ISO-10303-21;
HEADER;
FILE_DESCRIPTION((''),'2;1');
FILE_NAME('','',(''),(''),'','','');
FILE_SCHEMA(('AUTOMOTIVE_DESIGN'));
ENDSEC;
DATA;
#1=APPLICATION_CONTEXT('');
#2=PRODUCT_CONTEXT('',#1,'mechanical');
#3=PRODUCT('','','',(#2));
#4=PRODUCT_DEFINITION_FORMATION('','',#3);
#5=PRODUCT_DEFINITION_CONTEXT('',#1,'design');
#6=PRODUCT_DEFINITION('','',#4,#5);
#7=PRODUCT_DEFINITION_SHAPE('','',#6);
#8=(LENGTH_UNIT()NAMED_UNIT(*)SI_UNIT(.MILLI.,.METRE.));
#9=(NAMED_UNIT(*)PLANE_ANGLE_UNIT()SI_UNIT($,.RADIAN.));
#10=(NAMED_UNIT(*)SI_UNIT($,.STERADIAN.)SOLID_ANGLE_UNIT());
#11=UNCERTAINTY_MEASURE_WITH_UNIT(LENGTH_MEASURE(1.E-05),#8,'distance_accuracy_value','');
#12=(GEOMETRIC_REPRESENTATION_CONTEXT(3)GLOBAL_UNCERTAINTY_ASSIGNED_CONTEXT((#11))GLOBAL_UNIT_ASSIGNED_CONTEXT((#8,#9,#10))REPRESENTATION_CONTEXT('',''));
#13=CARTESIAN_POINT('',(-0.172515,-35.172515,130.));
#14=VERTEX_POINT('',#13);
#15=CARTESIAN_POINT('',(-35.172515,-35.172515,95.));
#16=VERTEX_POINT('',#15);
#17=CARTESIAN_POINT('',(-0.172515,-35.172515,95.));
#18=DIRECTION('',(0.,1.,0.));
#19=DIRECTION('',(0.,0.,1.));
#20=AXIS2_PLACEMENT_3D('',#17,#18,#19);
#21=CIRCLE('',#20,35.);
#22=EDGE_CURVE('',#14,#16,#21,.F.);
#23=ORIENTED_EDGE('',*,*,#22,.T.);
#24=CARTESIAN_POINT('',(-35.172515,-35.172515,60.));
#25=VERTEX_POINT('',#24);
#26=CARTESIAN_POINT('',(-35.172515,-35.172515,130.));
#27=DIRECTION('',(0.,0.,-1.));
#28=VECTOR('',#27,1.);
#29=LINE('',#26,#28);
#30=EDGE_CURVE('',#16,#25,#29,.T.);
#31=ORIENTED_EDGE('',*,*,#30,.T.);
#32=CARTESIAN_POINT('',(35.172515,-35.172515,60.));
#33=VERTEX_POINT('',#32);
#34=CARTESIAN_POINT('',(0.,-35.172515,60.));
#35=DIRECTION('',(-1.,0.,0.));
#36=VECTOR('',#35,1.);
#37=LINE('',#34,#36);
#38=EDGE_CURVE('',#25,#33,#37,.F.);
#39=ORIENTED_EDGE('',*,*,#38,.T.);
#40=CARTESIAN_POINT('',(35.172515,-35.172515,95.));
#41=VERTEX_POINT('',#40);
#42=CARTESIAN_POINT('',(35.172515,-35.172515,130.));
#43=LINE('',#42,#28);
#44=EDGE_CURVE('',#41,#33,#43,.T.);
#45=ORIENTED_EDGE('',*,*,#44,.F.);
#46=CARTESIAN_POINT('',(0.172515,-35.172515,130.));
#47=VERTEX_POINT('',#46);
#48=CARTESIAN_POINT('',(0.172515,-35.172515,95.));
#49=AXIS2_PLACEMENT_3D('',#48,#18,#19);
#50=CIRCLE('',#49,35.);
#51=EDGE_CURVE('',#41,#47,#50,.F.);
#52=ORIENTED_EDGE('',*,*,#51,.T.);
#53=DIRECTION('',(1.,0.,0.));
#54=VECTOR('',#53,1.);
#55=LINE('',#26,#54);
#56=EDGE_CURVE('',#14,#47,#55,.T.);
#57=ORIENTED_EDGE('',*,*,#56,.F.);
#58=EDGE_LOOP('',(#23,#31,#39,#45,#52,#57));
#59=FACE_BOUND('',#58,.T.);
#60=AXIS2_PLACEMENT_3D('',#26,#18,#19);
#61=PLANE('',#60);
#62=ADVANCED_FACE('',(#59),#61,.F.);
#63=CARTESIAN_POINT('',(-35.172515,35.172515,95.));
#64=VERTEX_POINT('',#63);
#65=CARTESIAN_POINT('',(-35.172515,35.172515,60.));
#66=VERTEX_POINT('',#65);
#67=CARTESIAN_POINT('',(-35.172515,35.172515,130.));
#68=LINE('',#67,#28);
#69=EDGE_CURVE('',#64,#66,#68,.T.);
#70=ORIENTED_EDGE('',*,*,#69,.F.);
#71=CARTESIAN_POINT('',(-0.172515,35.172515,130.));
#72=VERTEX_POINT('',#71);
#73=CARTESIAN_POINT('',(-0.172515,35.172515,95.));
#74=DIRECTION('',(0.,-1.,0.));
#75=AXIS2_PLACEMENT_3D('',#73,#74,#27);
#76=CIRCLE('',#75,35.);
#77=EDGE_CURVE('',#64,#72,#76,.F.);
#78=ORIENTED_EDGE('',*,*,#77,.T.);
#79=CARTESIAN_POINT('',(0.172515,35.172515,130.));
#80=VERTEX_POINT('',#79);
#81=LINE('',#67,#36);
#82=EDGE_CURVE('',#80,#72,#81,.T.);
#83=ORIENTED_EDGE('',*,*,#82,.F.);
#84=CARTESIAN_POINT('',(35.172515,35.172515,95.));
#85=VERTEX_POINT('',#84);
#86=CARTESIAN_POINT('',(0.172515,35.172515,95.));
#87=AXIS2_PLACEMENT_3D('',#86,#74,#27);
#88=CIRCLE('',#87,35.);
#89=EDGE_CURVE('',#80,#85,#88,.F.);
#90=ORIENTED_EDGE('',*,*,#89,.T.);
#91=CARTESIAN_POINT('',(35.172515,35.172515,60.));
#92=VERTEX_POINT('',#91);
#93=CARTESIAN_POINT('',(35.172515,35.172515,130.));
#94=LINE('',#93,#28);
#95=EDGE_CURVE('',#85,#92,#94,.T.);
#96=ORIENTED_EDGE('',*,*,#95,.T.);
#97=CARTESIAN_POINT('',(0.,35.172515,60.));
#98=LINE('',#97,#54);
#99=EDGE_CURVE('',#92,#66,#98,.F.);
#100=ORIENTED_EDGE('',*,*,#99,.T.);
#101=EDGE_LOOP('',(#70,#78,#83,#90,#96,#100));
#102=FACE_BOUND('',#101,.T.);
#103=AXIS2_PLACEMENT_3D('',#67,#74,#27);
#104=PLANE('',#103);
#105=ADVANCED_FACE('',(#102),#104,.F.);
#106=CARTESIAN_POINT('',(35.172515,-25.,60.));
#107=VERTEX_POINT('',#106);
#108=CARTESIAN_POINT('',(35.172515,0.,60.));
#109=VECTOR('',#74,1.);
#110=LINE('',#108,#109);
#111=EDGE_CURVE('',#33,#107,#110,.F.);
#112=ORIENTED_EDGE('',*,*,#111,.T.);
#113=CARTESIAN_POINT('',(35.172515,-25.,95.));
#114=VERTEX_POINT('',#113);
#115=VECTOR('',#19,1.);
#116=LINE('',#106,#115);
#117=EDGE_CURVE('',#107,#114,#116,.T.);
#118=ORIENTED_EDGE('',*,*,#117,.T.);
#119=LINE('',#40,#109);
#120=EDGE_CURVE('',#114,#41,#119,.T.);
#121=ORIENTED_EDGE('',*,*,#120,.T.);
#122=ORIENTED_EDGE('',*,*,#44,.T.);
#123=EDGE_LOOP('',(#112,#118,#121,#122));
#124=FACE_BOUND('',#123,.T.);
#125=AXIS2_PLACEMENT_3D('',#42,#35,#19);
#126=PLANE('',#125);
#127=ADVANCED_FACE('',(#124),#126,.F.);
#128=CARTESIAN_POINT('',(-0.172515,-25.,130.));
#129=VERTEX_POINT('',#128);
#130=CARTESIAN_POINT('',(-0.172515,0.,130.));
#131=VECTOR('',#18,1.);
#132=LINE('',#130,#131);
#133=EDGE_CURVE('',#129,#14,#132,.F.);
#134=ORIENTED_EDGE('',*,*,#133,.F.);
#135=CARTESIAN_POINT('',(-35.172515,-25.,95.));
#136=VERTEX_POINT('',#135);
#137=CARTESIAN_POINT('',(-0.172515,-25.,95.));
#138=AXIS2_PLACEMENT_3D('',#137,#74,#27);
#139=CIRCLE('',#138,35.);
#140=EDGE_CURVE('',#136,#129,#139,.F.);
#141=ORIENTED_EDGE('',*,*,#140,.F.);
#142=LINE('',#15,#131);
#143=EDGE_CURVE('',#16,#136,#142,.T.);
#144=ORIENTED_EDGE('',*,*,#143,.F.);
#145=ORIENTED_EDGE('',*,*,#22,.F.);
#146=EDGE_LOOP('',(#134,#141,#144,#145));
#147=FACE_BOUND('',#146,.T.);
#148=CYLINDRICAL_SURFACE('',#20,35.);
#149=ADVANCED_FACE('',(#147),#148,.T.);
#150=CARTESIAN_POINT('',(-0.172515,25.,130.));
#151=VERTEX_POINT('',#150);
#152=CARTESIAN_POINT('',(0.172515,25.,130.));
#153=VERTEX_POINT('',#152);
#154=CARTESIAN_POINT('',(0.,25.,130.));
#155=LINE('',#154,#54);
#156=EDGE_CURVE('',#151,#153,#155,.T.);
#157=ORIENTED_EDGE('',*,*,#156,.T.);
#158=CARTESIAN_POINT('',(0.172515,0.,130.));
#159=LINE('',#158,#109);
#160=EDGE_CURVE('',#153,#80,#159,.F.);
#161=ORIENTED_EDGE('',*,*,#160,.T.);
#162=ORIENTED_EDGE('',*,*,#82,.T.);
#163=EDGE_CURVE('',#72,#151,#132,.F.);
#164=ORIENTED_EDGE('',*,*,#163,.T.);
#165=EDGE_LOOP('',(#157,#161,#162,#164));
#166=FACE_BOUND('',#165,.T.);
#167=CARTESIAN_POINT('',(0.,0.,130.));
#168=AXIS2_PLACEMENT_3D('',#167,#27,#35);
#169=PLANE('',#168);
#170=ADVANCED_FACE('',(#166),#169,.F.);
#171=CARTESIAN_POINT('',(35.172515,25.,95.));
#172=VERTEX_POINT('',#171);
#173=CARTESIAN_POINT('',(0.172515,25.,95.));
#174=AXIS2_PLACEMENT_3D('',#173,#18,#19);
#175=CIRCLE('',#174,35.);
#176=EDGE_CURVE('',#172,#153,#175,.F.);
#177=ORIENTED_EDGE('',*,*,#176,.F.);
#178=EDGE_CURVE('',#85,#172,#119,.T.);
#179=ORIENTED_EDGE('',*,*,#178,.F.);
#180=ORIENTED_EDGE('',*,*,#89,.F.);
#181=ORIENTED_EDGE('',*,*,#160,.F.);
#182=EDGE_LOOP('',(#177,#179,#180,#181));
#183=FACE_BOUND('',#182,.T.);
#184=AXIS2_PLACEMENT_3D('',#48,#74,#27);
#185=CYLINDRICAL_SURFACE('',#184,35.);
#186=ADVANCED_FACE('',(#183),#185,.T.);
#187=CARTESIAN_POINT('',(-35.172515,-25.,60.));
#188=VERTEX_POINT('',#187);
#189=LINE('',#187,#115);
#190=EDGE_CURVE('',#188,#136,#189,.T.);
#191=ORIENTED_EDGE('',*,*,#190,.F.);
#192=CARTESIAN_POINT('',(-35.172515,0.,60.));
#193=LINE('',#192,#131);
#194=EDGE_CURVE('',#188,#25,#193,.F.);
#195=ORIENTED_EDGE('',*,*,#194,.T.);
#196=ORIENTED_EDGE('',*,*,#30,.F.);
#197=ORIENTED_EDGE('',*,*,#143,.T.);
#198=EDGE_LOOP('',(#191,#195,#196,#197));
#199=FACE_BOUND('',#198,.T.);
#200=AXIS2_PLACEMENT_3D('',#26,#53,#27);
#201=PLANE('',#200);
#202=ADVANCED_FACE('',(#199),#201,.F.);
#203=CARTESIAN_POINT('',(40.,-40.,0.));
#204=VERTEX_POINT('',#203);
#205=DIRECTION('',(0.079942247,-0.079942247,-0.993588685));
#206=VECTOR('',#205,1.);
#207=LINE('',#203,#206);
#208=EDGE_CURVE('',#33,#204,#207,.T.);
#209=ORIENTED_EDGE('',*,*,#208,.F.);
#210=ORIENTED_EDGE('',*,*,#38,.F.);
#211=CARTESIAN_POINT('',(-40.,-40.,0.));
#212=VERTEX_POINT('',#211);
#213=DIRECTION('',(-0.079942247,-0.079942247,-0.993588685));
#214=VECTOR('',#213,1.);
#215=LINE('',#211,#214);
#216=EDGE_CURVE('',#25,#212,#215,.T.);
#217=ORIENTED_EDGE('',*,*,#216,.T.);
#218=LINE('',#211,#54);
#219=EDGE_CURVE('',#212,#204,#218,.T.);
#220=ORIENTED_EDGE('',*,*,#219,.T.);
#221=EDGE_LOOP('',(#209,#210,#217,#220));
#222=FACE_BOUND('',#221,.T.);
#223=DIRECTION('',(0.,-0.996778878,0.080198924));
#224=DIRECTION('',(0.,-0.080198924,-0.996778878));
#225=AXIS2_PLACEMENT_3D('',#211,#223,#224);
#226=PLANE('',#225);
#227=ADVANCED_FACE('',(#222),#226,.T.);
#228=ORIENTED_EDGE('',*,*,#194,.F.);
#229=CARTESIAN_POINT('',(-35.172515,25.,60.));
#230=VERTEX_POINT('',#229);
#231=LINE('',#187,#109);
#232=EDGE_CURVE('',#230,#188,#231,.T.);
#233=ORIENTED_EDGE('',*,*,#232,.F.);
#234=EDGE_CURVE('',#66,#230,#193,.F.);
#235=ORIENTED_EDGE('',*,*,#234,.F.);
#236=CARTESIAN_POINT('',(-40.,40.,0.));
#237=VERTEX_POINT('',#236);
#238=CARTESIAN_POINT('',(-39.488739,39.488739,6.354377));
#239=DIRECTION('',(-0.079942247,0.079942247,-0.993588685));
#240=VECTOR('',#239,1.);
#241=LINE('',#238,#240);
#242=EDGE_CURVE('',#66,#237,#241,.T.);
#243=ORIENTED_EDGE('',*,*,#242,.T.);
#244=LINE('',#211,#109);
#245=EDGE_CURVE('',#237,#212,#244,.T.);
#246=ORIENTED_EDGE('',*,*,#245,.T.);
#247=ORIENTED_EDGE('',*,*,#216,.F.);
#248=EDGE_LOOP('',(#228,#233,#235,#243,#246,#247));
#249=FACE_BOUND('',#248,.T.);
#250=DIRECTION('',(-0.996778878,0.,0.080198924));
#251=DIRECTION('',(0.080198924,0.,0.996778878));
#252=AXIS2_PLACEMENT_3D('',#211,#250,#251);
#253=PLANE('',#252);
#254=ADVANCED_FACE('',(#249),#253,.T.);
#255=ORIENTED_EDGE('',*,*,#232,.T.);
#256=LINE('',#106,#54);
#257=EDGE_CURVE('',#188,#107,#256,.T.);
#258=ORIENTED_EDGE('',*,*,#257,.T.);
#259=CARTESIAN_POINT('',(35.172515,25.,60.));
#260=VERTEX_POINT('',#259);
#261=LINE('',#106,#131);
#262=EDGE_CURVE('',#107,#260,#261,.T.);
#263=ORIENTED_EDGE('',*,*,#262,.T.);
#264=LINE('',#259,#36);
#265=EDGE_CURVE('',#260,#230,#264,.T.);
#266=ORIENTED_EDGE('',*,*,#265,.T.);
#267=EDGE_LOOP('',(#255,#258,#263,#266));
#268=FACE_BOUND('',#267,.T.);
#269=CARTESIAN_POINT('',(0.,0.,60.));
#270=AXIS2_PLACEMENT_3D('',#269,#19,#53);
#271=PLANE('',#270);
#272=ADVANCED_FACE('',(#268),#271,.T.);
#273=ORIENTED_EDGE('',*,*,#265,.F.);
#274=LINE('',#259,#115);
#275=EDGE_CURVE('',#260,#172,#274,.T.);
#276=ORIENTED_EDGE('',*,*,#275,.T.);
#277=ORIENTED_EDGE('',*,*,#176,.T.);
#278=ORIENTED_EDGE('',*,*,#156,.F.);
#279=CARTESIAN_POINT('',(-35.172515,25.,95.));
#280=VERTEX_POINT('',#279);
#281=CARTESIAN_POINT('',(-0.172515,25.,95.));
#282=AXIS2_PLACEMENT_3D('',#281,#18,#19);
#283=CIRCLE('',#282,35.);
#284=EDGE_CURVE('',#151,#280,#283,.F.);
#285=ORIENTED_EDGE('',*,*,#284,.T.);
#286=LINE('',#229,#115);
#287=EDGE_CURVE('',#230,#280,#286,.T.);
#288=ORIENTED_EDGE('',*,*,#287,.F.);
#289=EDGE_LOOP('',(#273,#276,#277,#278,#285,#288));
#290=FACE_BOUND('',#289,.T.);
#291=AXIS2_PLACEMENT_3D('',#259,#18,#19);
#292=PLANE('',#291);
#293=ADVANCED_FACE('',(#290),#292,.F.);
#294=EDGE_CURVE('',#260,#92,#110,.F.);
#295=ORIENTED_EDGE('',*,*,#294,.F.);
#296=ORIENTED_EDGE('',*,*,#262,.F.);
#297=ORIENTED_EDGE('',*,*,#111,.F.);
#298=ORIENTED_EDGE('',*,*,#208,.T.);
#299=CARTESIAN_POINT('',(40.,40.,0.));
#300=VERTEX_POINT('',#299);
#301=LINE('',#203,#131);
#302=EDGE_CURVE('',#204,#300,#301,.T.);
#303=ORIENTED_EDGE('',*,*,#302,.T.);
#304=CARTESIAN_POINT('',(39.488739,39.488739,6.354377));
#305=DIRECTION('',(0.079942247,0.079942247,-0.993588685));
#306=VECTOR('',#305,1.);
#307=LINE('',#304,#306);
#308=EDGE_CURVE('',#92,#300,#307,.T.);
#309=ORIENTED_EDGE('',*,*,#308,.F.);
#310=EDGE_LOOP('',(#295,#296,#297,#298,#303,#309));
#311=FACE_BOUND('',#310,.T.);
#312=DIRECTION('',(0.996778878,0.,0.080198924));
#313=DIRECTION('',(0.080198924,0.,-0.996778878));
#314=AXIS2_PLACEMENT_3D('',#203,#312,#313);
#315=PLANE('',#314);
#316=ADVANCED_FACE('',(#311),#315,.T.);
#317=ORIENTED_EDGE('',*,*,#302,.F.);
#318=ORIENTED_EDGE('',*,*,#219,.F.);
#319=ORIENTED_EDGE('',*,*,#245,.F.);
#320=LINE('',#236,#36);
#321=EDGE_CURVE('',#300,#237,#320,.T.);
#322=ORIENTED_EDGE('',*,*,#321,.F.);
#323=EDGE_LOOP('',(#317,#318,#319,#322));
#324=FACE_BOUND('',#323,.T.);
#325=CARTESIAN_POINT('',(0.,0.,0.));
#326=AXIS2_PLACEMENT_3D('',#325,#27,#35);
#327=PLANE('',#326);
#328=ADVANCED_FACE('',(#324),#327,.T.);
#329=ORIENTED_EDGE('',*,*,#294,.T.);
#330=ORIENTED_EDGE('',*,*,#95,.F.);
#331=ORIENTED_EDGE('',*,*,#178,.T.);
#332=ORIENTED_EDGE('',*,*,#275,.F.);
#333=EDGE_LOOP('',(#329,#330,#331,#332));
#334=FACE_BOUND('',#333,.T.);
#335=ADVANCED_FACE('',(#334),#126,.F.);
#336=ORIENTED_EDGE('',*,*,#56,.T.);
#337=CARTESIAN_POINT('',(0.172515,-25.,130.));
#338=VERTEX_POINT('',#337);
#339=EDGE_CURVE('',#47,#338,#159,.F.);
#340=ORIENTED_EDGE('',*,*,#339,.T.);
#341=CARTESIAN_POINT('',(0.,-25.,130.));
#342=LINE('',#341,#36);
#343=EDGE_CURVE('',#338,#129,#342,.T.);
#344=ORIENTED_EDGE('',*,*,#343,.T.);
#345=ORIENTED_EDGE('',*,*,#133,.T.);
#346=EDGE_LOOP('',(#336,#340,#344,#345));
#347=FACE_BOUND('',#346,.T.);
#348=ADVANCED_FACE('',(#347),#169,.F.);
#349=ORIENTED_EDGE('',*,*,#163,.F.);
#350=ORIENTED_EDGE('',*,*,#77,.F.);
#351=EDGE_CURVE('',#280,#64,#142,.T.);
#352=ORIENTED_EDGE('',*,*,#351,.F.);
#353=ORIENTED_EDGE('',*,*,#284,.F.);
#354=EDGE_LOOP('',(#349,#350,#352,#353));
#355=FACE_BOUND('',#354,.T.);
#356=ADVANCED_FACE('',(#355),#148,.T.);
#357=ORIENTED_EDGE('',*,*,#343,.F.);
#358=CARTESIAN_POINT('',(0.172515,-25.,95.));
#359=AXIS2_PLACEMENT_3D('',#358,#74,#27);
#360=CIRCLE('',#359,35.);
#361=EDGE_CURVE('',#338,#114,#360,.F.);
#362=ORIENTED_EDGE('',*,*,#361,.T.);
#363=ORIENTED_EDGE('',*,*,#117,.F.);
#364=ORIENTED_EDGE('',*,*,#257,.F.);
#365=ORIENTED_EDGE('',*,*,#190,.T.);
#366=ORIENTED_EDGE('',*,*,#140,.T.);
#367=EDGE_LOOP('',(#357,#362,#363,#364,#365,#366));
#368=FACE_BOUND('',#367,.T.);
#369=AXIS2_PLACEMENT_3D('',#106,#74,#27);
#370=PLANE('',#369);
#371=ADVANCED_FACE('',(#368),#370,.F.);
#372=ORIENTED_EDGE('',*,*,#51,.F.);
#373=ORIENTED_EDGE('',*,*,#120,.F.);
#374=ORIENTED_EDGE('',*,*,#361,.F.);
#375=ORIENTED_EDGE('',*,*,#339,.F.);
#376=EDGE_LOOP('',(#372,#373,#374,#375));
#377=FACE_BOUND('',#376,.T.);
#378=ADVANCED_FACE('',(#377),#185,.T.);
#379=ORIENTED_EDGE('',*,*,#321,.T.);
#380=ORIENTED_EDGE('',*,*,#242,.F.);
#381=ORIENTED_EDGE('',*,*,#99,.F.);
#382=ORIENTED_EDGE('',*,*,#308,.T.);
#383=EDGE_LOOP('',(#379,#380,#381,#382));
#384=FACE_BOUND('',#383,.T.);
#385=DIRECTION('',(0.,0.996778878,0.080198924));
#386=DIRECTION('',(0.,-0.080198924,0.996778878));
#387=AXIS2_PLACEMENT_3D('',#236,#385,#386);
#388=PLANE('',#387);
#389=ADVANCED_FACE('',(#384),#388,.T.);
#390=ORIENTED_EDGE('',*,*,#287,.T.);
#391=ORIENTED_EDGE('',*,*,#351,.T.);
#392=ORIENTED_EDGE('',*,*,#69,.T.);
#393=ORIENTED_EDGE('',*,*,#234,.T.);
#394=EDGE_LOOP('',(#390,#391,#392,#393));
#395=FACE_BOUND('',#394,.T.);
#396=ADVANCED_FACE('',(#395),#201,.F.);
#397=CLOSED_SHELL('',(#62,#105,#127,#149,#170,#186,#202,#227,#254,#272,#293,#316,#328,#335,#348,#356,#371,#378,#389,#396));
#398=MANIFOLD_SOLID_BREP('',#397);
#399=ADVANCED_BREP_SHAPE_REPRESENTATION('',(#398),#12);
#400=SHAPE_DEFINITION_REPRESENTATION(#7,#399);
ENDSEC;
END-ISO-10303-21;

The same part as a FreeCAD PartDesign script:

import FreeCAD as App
import Part
import Sketcher

V = App.Vector


def edges_at(feature, points):
    """Names of the edges that pass closest to the given points."""
    edges = feature.Shape.Edges
    near = lambda p: min(range(len(edges)), key=lambda i: edges[i].distToShape(Part.Vertex(*p))[0])
    return sorted({f"Edge{near(p) + 1}" for p in points})


def add_polygon(sketch, points):
    """Adds a closed chain of lines whose ends are joined by coincident constraints."""
    first, n = sketch.GeometryCount, len(points)
    for a, b in zip(points, points[1:] + points[:1]):
        sketch.addGeometry(Part.LineSegment(App.Vector(*a, 0), App.Vector(*b, 0)), False)
    for i in range(n):
        sketch.addConstraint(Sketcher.Constraint("Coincident", first + i, 2, first + (i + 1) % n, 1))

doc = App.newDocument("Part")
body = doc.addObject("PartDesign::Body", "Body")

# Sketch on XY plane
sketch1 = body.newObject("Sketcher::SketchObject", "Sketch")
sketch1.AttachmentSupport = (doc.getObject("XY_Plane"), [""])
sketch1.MapMode = "FlatFace"
add_polygon(sketch1, [(-40, 40), (-40, -40), (40, -40), (40, 40)])  # lines 0-3
sketch1.addConstraint([
    Sketcher.Constraint("Vertical", 0),
    Sketcher.Constraint("Horizontal", 1),
    Sketcher.Constraint("Vertical", 2),
    Sketcher.Constraint("Horizontal", 3),
    Sketcher.Constraint("Symmetric", 0, 2, 2, 2, -1, 1),
    Sketcher.Constraint("Equal", 3, 0),
    Sketcher.Constraint("DistanceX", 1, 1, 1, 2, 80.0),
])
pad1 = body.newObject("PartDesign::Pad", "Pad")
pad1.Profile = sketch1
pad1.Length = 60
pad1.TaperAngle = -4.6

# Sketch on XY plane
sketch2 = body.newObject("Sketcher::SketchObject", "Sketch001")
sketch2.AttachmentSupport = (doc.getObject("XY_Plane"), [""])
sketch2.MapMode = "FlatFace"
sketch2.AttachmentOffset = App.Placement(V(0, 0, 60), App.Rotation())
add_polygon(sketch2, [(-35, 35), (-35, -35), (35, -35), (35, 35)])  # lines 0-3
sketch2.addConstraint([
    Sketcher.Constraint("Vertical", 0),
    Sketcher.Constraint("Horizontal", 1),
    Sketcher.Constraint("Vertical", 2),
    Sketcher.Constraint("Horizontal", 3),
    Sketcher.Constraint("Symmetric", 0, 2, 2, 2, -1, 1),
    Sketcher.Constraint("Equal", 3, 0),
    Sketcher.Constraint("DistanceX", 1, 1, 1, 2, 70.345029),
])
pad2 = body.newObject("PartDesign::Pad", "Pad001")
pad2.Profile = sketch2
pad2.Length = 70
doc.recompute()

fillet = body.newObject("PartDesign::Fillet", "Fillet")
fillet.Base = (pad2, edges_at(pad2, [(-35.173, 0, 130)]))
fillet.Radius = 35
doc.recompute()

fillet2 = body.newObject("PartDesign::Fillet", "Fillet001")
fillet2.Base = (fillet, edges_at(fillet, [(35.173, 0, 130)]))
fillet2.Radius = 35

# Sketch on XY plane
sketch3 = body.newObject("Sketcher::SketchObject", "Sketch002")
sketch3.AttachmentSupport = (doc.getObject("XY_Plane"), [""])
sketch3.MapMode = "FlatFace"
sketch3.AttachmentOffset = App.Placement(V(0, 0, 130), App.Rotation())
add_polygon(sketch3, [(-35, 25), (-35, -25), (35, -25), (35, 25)])  # lines 0-3
sketch3.addConstraint([
    Sketcher.Constraint("Vertical", 0),
    Sketcher.Constraint("Horizontal", 1),
    Sketcher.Constraint("Vertical", 2),
    Sketcher.Constraint("Horizontal", 3),
    Sketcher.Constraint("Symmetric", 0, 2, 2, 2, -1, 1),
    Sketcher.Constraint("DistanceY", 0, 2, 0, 1, 50.0),
    Sketcher.Constraint("DistanceX", 1, 1, 1, 2, 70.345029),
])
pocket1 = body.newObject("PartDesign::Pocket", "Pocket")
pocket1.Profile = sketch3
pocket1.Length = 70

doc.recompute()
